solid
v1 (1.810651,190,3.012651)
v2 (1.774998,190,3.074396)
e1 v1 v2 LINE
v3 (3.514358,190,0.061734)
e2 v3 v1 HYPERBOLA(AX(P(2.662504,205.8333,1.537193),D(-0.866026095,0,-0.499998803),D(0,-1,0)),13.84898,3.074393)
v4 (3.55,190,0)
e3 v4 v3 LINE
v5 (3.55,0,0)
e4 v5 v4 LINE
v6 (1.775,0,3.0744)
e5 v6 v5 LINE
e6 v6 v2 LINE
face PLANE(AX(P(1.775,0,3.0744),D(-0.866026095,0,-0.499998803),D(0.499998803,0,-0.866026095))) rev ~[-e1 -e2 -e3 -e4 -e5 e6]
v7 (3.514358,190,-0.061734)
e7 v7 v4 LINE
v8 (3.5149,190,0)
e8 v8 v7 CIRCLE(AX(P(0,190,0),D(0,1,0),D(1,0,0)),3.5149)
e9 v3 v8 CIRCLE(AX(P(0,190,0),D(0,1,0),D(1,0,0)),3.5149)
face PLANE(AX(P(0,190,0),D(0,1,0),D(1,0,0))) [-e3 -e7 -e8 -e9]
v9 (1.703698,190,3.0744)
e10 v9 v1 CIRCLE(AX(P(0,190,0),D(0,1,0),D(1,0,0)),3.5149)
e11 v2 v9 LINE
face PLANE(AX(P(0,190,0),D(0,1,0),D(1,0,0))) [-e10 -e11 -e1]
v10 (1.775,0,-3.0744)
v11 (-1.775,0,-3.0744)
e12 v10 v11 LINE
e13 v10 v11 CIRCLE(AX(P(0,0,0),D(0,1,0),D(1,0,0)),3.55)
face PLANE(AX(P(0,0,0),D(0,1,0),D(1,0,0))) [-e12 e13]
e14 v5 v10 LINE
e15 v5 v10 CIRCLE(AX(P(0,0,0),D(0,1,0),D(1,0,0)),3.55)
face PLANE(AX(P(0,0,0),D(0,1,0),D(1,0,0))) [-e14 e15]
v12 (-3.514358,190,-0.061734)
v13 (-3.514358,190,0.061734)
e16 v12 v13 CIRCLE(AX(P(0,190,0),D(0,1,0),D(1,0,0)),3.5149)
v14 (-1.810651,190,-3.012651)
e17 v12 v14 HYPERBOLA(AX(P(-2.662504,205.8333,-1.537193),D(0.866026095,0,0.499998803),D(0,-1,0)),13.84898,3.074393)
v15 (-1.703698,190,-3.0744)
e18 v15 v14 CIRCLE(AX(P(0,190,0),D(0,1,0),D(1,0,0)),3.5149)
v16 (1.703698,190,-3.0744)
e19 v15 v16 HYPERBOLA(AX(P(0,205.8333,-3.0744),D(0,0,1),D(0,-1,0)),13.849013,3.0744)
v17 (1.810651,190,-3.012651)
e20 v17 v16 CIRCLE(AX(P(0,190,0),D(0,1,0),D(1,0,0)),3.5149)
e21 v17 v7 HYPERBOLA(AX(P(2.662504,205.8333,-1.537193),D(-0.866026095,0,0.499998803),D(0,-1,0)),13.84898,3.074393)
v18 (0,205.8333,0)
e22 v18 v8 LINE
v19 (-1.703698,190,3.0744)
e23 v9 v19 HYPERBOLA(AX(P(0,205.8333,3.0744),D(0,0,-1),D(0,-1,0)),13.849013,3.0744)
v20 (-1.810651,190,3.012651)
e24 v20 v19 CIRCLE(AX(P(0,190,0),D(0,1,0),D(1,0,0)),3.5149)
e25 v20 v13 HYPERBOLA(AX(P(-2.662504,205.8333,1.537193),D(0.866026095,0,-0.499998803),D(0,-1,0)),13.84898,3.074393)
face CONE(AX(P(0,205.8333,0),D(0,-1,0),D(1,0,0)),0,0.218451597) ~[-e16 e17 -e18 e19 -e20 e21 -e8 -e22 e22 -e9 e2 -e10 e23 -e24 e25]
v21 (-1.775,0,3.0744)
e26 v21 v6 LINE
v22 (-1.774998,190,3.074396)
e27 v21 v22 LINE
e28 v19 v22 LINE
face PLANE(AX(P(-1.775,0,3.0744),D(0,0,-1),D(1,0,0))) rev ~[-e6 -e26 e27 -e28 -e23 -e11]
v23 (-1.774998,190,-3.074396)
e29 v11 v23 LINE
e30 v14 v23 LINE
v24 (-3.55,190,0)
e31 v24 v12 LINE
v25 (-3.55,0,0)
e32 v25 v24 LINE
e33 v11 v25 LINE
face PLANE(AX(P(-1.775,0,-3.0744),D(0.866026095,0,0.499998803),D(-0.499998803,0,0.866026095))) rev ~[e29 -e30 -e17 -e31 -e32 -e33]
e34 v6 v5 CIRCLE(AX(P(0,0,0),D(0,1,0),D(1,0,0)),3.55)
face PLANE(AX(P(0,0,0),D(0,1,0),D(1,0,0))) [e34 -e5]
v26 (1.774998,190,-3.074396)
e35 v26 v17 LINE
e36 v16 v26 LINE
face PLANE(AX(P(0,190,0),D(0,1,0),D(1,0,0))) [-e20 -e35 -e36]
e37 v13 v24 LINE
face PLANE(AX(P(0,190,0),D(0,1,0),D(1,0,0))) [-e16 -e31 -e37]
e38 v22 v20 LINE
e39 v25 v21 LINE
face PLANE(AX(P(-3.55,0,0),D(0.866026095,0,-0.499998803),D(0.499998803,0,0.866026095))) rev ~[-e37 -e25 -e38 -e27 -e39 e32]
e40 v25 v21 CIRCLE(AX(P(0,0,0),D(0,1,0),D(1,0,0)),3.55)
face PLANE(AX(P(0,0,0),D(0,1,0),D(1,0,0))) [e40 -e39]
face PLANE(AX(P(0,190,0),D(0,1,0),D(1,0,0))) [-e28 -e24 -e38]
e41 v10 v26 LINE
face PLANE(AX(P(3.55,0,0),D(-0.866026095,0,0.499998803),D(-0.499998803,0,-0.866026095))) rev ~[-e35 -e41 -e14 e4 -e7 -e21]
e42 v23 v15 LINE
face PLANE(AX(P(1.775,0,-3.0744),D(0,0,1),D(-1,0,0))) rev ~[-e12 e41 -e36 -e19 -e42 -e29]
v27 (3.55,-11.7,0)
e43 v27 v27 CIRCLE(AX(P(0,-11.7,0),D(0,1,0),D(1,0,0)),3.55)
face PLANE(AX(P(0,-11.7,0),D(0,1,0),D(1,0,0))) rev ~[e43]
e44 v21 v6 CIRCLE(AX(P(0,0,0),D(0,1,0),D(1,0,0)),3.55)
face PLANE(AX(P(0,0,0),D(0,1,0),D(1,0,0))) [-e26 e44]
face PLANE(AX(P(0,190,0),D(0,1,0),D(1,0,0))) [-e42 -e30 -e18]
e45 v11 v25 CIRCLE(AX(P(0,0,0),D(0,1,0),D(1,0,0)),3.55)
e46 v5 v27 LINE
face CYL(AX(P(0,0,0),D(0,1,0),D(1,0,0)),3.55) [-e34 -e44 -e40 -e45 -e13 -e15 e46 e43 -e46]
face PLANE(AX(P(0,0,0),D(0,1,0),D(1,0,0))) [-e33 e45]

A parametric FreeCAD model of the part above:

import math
import FreeCAD as App
import Part
import Sketcher
from FreeCAD import Vector

doc = App.newDocument("Part")
body = doc.addObject("PartDesign::Body", "Body")

sketch1 = body.newObject("Sketcher::SketchObject", "Sketch")
sketch1.AttachmentSupport = (doc.getObject("XZ_Plane"), [""])
sketch1.MapMode = "FlatFace"
sketch1.addGeometry(Part.Circle(Vector(0, 0, 0), Vector(0, 0, 1), 3.55), False)
sketch1.addConstraint([
    Sketcher.Constraint("Coincident", 0, 3, -1, 1),
    Sketcher.Constraint("Diameter", 0, 7.1),
])
pad1 = body.newObject("PartDesign::Pad", "Pad")
pad1.Profile = sketch1
pad1.Length = 190
pad1.Reversed = True

sketch2 = body.newObject("Sketcher::SketchObject", "Sketch001")
sketch2.AttachmentSupport = (doc.getObject("XY_Plane"), [""])
sketch2.MapMode = "FlatFace"
sketch2.addGeometry([
    Part.LineSegment(Vector(0, 205.8333, 0), Vector(0, 190, 0)),
    Part.LineSegment(Vector(0, 190, 0), Vector(3.5149, 190, 0)),
    Part.LineSegment(Vector(3.5149, 190, 0), Vector(0, 205.8333, 0)),
], False)
sketch2.addConstraint([
    Sketcher.Constraint("Coincident", 0, 2, 1, 1),
    Sketcher.Constraint("Coincident", 1, 2, 2, 1),
    Sketcher.Constraint("Coincident", 2, 2, 0, 1),
    Sketcher.Constraint("Vertical", 0),
    Sketcher.Constraint("Horizontal", 1),
    Sketcher.Constraint("PointOnObject", 0, 2, -2),
    Sketcher.Constraint("DistanceY", 0, 2, 0, 1, 15.8333),
    Sketcher.Constraint("DistanceY", -1, 1, 0, 2, 190.0),
    Sketcher.Constraint("DistanceX", 1, 1, 1, 2, 3.515),
])
revolution = body.newObject("PartDesign::Revolution", "Revolution")
revolution.Profile = sketch2
revolution.ReferenceAxis = (sketch2, ["V_Axis"])
revolution.Angle = 360

sketch3 = body.newObject("Sketcher::SketchObject", "Sketch002")
sketch3.AttachmentSupport = (doc.getObject("XZ_Plane"), [""])
sketch3.MapMode = "FlatFace"
sketch3.addGeometry([
    Part.ArcOfCircle(Part.Circle(Vector(0, 0, 0), Vector(0, 0, 1), 3.55), math.radians(60.000079), math.radians(119.999921)),
    Part.LineSegment(Vector(-1.775, 3.0744, 0), Vector(1.775, 3.0744, 0)),
    Part.LineSegment(Vector(3.55, 0, 0), Vector(1.775, 3.0744, 0)),
    Part.ArcOfCircle(Part.Circle(Vector(0, 0, 0), Vector(0, 0, 1), 3.55), math.radians(0), math.radians(60.000079)),
    Part.LineSegment(Vector(1.775, -3.0744, 0), Vector(3.55, 0, 0)),
    Part.ArcOfCircle(Part.Circle(Vector(0, 0, 0), Vector(0, 0, 1), 3.55), math.radians(-60.000079), math.radians(0)),
    Part.ArcOfCircle(Part.Circle(Vector(0, 0, 0), Vector(0, 0, 1), 3.55), math.radians(119.999921), math.radians(180)),
    Part.LineSegment(Vector(-3.55, 0, 0), Vector(-1.775, 3.0744, 0)),
    Part.LineSegment(Vector(-1.775, -3.0744, 0), Vector(1.775, -3.0744, 0)),
    Part.ArcOfCircle(Part.Circle(Vector(0, 0, 0), Vector(0, 0, 1), 3.55), math.radians(-119.999921), math.radians(-60.000079)),
    Part.ArcOfCircle(Part.Circle(Vector(0, 0, 0), Vector(0, 0, 1), 3.55), math.radians(180), math.radians(240.000079)),
    Part.LineSegment(Vector(-3.55, 0, 0), Vector(-1.775, -3.0744, 0)),
], False)
sketch3.addConstraint([
    Sketcher.Constraint("Coincident", 0, 1, 1, 2),
    Sketcher.Constraint("Coincident", 1, 1, 0, 2),
    Sketcher.Constraint("Coincident", 2, 1, 3, 1),
    Sketcher.Constraint("Coincident", 3, 2, 2, 2),
    Sketcher.Constraint("Coincident", 4, 1, 5, 1),
    Sketcher.Constraint("Coincident", 5, 2, 4, 2),
    Sketcher.Constraint("Coincident", 6, 1, 7, 2),
    Sketcher.Constraint("Coincident", 7, 1, 6, 2),
    Sketcher.Constraint("Coincident", 8, 1, 9, 1),
    Sketcher.Constraint("Coincident", 9, 2, 8, 2),
    Sketcher.Constraint("Coincident", 10, 1, 11, 1),
    Sketcher.Constraint("Coincident", 11, 2, 10, 2),
    Sketcher.Constraint("Horizontal", 1),
    Sketcher.Constraint("Horizontal", 8),
    Sketcher.Constraint("Coincident", 0, 3, -1, 1),
    Sketcher.Constraint("Coincident", 3, 3, -1, 1),
    Sketcher.Constraint("Coincident", 5, 3, -1, 1),
    Sketcher.Constraint("Coincident", 6, 3, -1, 1),
    Sketcher.Constraint("Coincident", 9, 3, -1, 1),
    Sketcher.Constraint("Coincident", 10, 3, -1, 1),
    Sketcher.Constraint("Coincident", 3, 2, 0, 1),
    Sketcher.Constraint("Coincident", 5, 2, 2, 1),
    Sketcher.Constraint("Coincident", 6, 1, 1, 1),
    Sketcher.Constraint("Coincident", 9, 2, 4, 1),
    Sketcher.Constraint("Coincident", 10, 1, 7, 1),
    Sketcher.Constraint("PointOnObject", 2, 1, -1),
    Sketcher.Constraint("PointOnObject", 7, 1, -1),
    Sketcher.Constraint("Parallel", 4, 7),
    Sketcher.Constraint("Parallel", 2, 11),
    Sketcher.Constraint("Radius", 0, 3.55),
    Sketcher.Constraint("DistanceX", 1, 1, 1, 2, 3.55),
])
pocket1 = body.newObject("PartDesign::Pocket", "Pocket")
pocket1.Profile = sketch3
pocket1.Length = 205

sketch4 = body.newObject("Sketcher::SketchObject", "Sketch003")
sketch4.AttachmentSupport = (doc.getObject("XZ_Plane"), [""])
sketch4.MapMode = "FlatFace"
sketch4.addGeometry(Part.Circle(Vector(0, 0, 0), Vector(0, 0, 1), 3.55), False)
sketch4.addConstraint([
    Sketcher.Constraint("Coincident", 0, 3, -1, 1),
    Sketcher.Constraint("Diameter", 0, 7.1),
])
pad2 = body.newObject("PartDesign::Pad", "Pad001")
pad2.Profile = sketch4
pad2.Length = 11.7

doc.recompute()
